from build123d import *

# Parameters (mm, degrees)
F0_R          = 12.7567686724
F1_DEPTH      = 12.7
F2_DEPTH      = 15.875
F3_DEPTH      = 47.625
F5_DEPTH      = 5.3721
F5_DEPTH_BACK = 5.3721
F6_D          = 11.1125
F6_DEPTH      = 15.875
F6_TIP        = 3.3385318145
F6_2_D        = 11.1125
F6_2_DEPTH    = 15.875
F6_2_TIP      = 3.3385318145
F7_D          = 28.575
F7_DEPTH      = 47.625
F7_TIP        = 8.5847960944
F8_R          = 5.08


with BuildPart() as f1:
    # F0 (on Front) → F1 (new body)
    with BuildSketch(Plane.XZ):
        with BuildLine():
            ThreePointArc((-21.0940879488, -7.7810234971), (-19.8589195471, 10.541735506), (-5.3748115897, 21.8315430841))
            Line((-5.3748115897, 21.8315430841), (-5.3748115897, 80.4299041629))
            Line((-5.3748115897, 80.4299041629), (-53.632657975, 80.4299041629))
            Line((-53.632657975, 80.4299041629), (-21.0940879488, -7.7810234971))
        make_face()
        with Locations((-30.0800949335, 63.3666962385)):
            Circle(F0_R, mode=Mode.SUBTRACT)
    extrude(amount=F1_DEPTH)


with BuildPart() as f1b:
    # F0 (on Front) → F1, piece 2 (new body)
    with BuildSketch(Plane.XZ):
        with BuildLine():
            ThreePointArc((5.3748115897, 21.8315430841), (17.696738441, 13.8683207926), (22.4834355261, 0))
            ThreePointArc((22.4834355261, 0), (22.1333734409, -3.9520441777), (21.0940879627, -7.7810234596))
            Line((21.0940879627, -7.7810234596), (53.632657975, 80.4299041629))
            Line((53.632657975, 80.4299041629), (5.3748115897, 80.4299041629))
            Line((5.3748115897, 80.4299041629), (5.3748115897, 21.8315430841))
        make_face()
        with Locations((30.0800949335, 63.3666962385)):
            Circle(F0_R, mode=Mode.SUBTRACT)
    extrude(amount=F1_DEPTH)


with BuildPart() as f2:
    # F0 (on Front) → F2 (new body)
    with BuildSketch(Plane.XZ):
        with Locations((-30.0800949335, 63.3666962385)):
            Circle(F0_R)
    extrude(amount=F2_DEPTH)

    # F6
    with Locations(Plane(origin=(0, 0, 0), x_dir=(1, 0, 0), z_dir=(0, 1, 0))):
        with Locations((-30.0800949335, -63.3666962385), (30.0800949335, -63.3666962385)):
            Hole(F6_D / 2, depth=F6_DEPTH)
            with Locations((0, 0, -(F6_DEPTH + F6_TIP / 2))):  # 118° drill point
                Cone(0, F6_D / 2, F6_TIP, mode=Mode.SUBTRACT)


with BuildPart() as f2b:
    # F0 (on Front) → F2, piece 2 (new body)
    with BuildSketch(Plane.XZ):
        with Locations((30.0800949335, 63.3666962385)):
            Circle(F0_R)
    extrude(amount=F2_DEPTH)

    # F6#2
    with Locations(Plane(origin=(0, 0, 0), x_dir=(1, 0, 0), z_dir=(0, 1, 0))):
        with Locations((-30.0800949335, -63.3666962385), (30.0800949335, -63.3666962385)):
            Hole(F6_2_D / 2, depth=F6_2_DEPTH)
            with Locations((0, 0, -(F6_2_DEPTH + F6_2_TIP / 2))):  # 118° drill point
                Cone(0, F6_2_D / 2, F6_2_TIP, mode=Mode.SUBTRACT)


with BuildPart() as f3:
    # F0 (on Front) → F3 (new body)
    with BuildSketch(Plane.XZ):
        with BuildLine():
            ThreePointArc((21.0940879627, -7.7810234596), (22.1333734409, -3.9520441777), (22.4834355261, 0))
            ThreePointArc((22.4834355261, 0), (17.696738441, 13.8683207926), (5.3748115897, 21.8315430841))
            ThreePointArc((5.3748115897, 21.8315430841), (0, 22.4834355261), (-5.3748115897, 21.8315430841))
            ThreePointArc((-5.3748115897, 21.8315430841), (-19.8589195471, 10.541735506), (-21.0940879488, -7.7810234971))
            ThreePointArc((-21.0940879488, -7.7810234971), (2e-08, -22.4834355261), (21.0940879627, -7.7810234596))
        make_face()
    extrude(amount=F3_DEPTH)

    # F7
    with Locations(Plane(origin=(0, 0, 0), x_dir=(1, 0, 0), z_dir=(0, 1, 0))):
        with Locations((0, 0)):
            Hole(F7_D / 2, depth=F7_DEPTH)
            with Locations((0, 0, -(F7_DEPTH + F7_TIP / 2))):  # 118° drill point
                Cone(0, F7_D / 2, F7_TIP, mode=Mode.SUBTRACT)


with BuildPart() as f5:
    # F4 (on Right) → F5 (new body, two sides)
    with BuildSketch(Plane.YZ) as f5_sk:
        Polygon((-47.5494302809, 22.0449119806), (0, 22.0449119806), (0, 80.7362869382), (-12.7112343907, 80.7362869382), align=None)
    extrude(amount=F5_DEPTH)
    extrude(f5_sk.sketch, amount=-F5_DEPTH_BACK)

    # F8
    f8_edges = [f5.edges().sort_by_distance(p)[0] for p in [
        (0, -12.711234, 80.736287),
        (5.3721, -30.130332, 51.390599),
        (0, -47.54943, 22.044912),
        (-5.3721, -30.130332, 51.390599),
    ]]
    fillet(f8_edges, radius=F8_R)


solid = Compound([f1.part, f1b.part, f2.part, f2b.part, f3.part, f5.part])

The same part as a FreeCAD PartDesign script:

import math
import FreeCAD as App
import Part
import Sketcher
Q = App.Units.Quantity


def edges_at(feature, points):
    """Names of the edges that pass closest to the given points."""
    edges = feature.Shape.Edges
    near = lambda p: min(range(len(edges)), key=lambda i: edges[i].distToShape(Part.Vertex(*p))[0])
    return sorted({f"Edge{near(p) + 1}" for p in points})

doc = App.newDocument("Part")
body = doc.addObject("PartDesign::Body", "Body")

# Sketch on XZ plane
sketch1 = body.newObject("Sketcher::SketchObject", "Sketch")
sketch1.AttachmentSupport = (doc.getObject("XZ_Plane"), [""])
sketch1.MapMode = "FlatFace"
sketch1.addGeometry(Part.ArcOfCircle(Part.Circle(App.Vector(0, 0, 0), App.Vector(0, 0, 1), 22), math.radians(104), math.radians(200)), False)
sketch1.addGeometry(Part.LineSegment(App.Vector(-5, 22, 0), App.Vector(-5, 80, 0)), False)
sketch1.addGeometry(Part.LineSegment(App.Vector(-5, 80, 0), App.Vector(-54, 80, 0)), False)
sketch1.addGeometry(Part.LineSegment(App.Vector(-54, 80, 0), App.Vector(-21, -8, 0)), False)
sketch1.addGeometry(Part.Circle(App.Vector(-30, 63, 0), App.Vector(0, 0, 1), 13), False)
sketch1.addConstraint(Sketcher.Constraint("Coincident", 0, 1, 1, 1))
sketch1.addConstraint(Sketcher.Constraint("Coincident", 1, 2, 2, 1))
sketch1.addConstraint(Sketcher.Constraint("Coincident", 2, 2, 3, 1))
sketch1.addConstraint(Sketcher.Constraint("Tangent", 3, 2, 0, 2))
sketch1.addConstraint(Sketcher.Constraint("Vertical", 1))
sketch1.addConstraint(Sketcher.Constraint("Horizontal", 2))
sketch1.addConstraint(Sketcher.Constraint("Coincident", 0, 3, -1, 1))
sketch1.addConstraint(Sketcher.Constraint("Diameter", 4, Q("25.513537 mm")))
sketch1.addConstraint(Sketcher.Constraint("Radius", 0, Q("22.483436 mm")))
sketch1.addConstraint(Sketcher.Constraint("DistanceY", 1, 1, 1, 2, Q("58.598361 mm")))
sketch1.addConstraint(Sketcher.Constraint("DistanceX", 2, 2, 2, 1, Q("48.257846 mm")))
sketch1.addConstraint(Sketcher.Constraint("DistanceX", 0, 1, -1, 1, Q("5.374812 mm")))
sketch1.addConstraint(Sketcher.Constraint("DistanceY", 3, 2, 4, 3, Q("71.14772 mm")))
sketch1.addConstraint(Sketcher.Constraint("DistanceX", 4, 3, -1, 1, Q("30.080095 mm")))
pad1 = body.newObject("PartDesign::Pad", "Pad")
pad1.Profile = sketch1
pad1.Length = Q("0.5 in")
body2 = doc.addObject("PartDesign::Body", "Body001")

# Sketch on XZ plane
sketch2 = body2.newObject("Sketcher::SketchObject", "Sketch001")
sketch2.AttachmentSupport = (doc.getObject("XZ_Plane001"), [""])
sketch2.MapMode = "FlatFace"
sketch2.addGeometry(Part.ArcOfCircle(Part.Circle(App.Vector(0, 0, 0), App.Vector(0, 0, 1), 22), math.radians(0), math.radians(76)), False)
sketch2.addGeometry(Part.ArcOfCircle(Part.Circle(App.Vector(0, 0, 0), App.Vector(0, 0, 1), 22), math.radians(-20), math.radians(0)), False)
sketch2.addGeometry(Part.LineSegment(App.Vector(21, -8, 0), App.Vector(54, 80, 0)), False)
sketch2.addGeometry(Part.LineSegment(App.Vector(54, 80, 0), App.Vector(5, 80, 0)), False)
sketch2.addGeometry(Part.LineSegment(App.Vector(5, 80, 0), App.Vector(5, 22, 0)), False)
sketch2.addGeometry(Part.Circle(App.Vector(30, 63, 0), App.Vector(0, 0, 1), 13), False)
sketch2.addConstraint(Sketcher.Constraint("Tangent", 0, 1, 1, 2))
sketch2.addConstraint(Sketcher.Constraint("Tangent", 1, 1, 2, 1))
sketch2.addConstraint(Sketcher.Constraint("Coincident", 2, 2, 3, 1))
sketch2.addConstraint(Sketcher.Constraint("Coincident", 3, 2, 4, 1))
sketch2.addConstraint(Sketcher.Constraint("Coincident", 4, 2, 0, 2))
sketch2.addConstraint(Sketcher.Constraint("Horizontal", 3))
sketch2.addConstraint(Sketcher.Constraint("Vertical", 4))
sketch2.addConstraint(Sketcher.Constraint("Coincident", 0, 3, -1, 1))
sketch2.addConstraint(Sketcher.Constraint("Equal", 0, 1))
sketch2.addConstraint(Sketcher.Constraint("PointOnObject", 0, 1, -1))
sketch2.addConstraint(Sketcher.Constraint("Diameter", 5, Q("25.513537 mm")))
sketch2.addConstraint(Sketcher.Constraint("Radius", 0, Q("22.483436 mm")))
sketch2.addConstraint(Sketcher.Constraint("DistanceY", 4, 2, 4, 1, Q("58.598361 mm")))
sketch2.addConstraint(Sketcher.Constraint("DistanceX", 3, 2, 3, 1, Q("48.257846 mm")))
sketch2.addConstraint(Sketcher.Constraint("DistanceX", -1, 1, 3, 2, Q("5.374812 mm")))
sketch2.addConstraint(Sketcher.Constraint("DistanceX", 0, 1, 5, 3, Q("7.596659 mm")))
sketch2.addConstraint(Sketcher.Constraint("DistanceY", 1, 1, 5, 3, Q("71.14772 mm")))
pad2 = body2.newObject("PartDesign::Pad", "Pad001")
pad2.Profile = sketch2
pad2.Length = Q("0.5 in")
body3 = doc.addObject("PartDesign::Body", "Body002")

# Sketch on XZ plane
sketch3 = body3.newObject("Sketcher::SketchObject", "Sketch002")
sketch3.AttachmentSupport = (doc.getObject("XZ_Plane002"), [""])
sketch3.MapMode = "FlatFace"
sketch3.addGeometry(Part.Circle(App.Vector(-30, 63, 0), App.Vector(0, 0, 1), 13), False)
sketch3.addConstraint(Sketcher.Constraint("Diameter", 0, Q("25.513537 mm")))
sketch3.addConstraint(Sketcher.Constraint("DistanceX", 0, 3, -1, 1, Q("30.080095 mm")))
sketch3.addConstraint(Sketcher.Constraint("DistanceY", -1, 1, 0, 3, Q("63.366696 mm")))
pad3 = body3.newObject("PartDesign::Pad", "Pad002")
pad3.Profile = sketch3
pad3.Length = Q("0.625 in")

# Sketch on XZ plane
sketch4 = body3.newObject("Sketcher::SketchObject", "Sketch003")
sketch4.AttachmentSupport = (doc.getObject("XZ_Plane002"), [""])
sketch4.MapMode = "FlatFace"
sketch4.addGeometry(Part.Circle(App.Vector(-30, 63, 0), App.Vector(0, 0, 1), 6), False)
sketch4.addGeometry(Part.Circle(App.Vector(30, 63, 0), App.Vector(0, 0, 1), 6), False)
sketch4.addConstraint(Sketcher.Constraint("Equal", 0, 1))
sketch4.addConstraint(Sketcher.Constraint("Symmetric", 0, 3, 1, 3, -2))
sketch4.addConstraint(Sketcher.Constraint("Diameter", 0, Q("0.4375 in")))
sketch4.addConstraint(Sketcher.Constraint("DistanceX", 0, 3, 1, 3, Q("60.16019 mm")))
sketch4.addConstraint(Sketcher.Constraint("DistanceY", -1, 1, 0, 3, Q("63.366696 mm")))
doc.recompute()
hole = body3.newObject("PartDesign::Hole", "Hole")
hole.Profile = sketch4
hole.ThreadType = "None"
hole.Diameter = Q("0.4375 in")
hole.DepthType = "Dimension"
hole.Depth = Q("0.625 in")
hole.DrillPoint = "Angled"
hole.DrillPointAngle = 118
hole.Reversed = True
body4 = doc.addObject("PartDesign::Body", "Body003")

# Sketch on XZ plane
sketch5 = body4.newObject("Sketcher::SketchObject", "Sketch004")
sketch5.AttachmentSupport = (doc.getObject("XZ_Plane003"), [""])
sketch5.MapMode = "FlatFace"
sketch5.addGeometry(Part.Circle(App.Vector(30, 63, 0), App.Vector(0, 0, 1), 13), False)
sketch5.addConstraint(Sketcher.Constraint("Diameter", 0, Q("25.513537 mm")))
sketch5.addConstraint(Sketcher.Constraint("DistanceX", -1, 1, 0, 3, Q("30.080095 mm")))
sketch5.addConstraint(Sketcher.Constraint("DistanceY", -1, 1, 0, 3, Q("63.366696 mm")))
pad4 = body4.newObject("PartDesign::Pad", "Pad003")
pad4.Profile = sketch5
pad4.Length = Q("0.625 in")

# Sketch on XZ plane
sketch6 = body4.newObject("Sketcher::SketchObject", "Sketch005")
sketch6.AttachmentSupport = (doc.getObject("XZ_Plane003"), [""])
sketch6.MapMode = "FlatFace"
sketch6.addGeometry(Part.Circle(App.Vector(-30, 63, 0), App.Vector(0, 0, 1), 6), False)
sketch6.addGeometry(Part.Circle(App.Vector(30, 63, 0), App.Vector(0, 0, 1), 6), False)
sketch6.addConstraint(Sketcher.Constraint("Equal", 0, 1))
sketch6.addConstraint(Sketcher.Constraint("Symmetric", 0, 3, 1, 3, -2))
sketch6.addConstraint(Sketcher.Constraint("Diameter", 0, Q("0.4375 in")))
sketch6.addConstraint(Sketcher.Constraint("DistanceX", 0, 3, 1, 3, Q("60.16019 mm")))
sketch6.addConstraint(Sketcher.Constraint("DistanceY", -1, 1, 0, 3, Q("63.366696 mm")))
doc.recompute()
hole2 = body4.newObject("PartDesign::Hole", "Hole001")
hole2.Profile = sketch6
hole2.ThreadType = "None"
hole2.Diameter = Q("0.4375 in")
hole2.DepthType = "Dimension"
hole2.Depth = Q("0.625 in")
hole2.DrillPoint = "Angled"
hole2.DrillPointAngle = 118
hole2.Reversed = True
body5 = doc.addObject("PartDesign::Body", "Body004")

# Sketch on XZ plane
sketch7 = body5.newObject("Sketcher::SketchObject", "Sketch006")
sketch7.AttachmentSupport = (doc.getObject("XZ_Plane004"), [""])
sketch7.MapMode = "FlatFace"
sketch7.addGeometry(Part.ArcOfCircle(Part.Circle(App.Vector(0, 0, 0), App.Vector(0, 0, 1), 22), math.radians(0), math.radians(76)), False)
sketch7.addGeometry(Part.ArcOfCircle(Part.Circle(App.Vector(0, 0, 0), App.Vector(0, 0, 1), 22), math.radians(76), math.radians(104)), False)
sketch7.addGeometry(Part.ArcOfCircle(Part.Circle(App.Vector(0, 0, 0), App.Vector(0, 0, 1), 22), math.radians(104), math.radians(200)), False)
sketch7.addGeometry(Part.ArcOfCircle(Part.Circle(App.Vector(0, 0, 0), App.Vector(0, 0, 1), 22), math.radians(-160), math.radians(0)), False)
sketch7.addConstraint(Sketcher.Constraint("Tangent", 0, 2, 1, 1))
sketch7.addConstraint(Sketcher.Constraint("Tangent", 1, 2, 2, 1))
sketch7.addConstraint(Sketcher.Constraint("Tangent", 2, 2, 3, 1))
sketch7.addConstraint(Sketcher.Constraint("Tangent", 3, 2, 0, 1))
sketch7.addConstraint(Sketcher.Constraint("Coincident", 0, 3, -1, 1))
sketch7.addConstraint(Sketcher.Constraint("Equal", 0, 1))
sketch7.addConstraint(Sketcher.Constraint("PointOnObject", 3, 2, -1))
sketch7.addConstraint(Sketcher.Constraint("Horizontal", 0, 2, 1, 2))
sketch7.addConstraint(Sketcher.Constraint("Radius", 0, Q("22.483436 mm")))
sketch7.addConstraint(Sketcher.Constraint("DistanceX", -1, 1, 0, 2, Q("5.374812 mm")))
sketch7.addConstraint(Sketcher.Constraint("DistanceX", 2, 2, -1, 1, Q("21.094088 mm")))
pad5 = body5.newObject("PartDesign::Pad", "Pad004")
pad5.Profile = sketch7
pad5.Length = Q("1.875 in")

# Sketch on XZ plane
sketch8 = body5.newObject("Sketcher::SketchObject", "Sketch007")
sketch8.AttachmentSupport = (doc.getObject("XZ_Plane004"), [""])
sketch8.MapMode = "FlatFace"
sketch8.addGeometry(Part.Circle(App.Vector(0, 0, 0), App.Vector(0, 0, 1), 14), False)
sketch8.addConstraint(Sketcher.Constraint("Coincident", 0, 3, -1, 1))
sketch8.addConstraint(Sketcher.Constraint("Diameter", 0, Q("1.125 in")))
doc.recompute()
hole3 = body5.newObject("PartDesign::Hole", "Hole002")
hole3.Profile = sketch8
hole3.ThreadType = "None"
hole3.Diameter = Q("1.125 in")
hole3.DepthType = "Dimension"
hole3.Depth = Q("1.875 in")
hole3.DrillPoint = "Angled"
hole3.DrillPointAngle = 118
hole3.Reversed = True
body6 = doc.addObject("PartDesign::Body", "Body005")

# Sketch on YZ plane
sketch9 = body6.newObject("Sketcher::SketchObject", "Sketch008")
sketch9.AttachmentSupport = (doc.getObject("YZ_Plane005"), [""])
sketch9.MapMode = "FlatFace"
sketch9.addGeometry(Part.LineSegment(App.Vector(-48, 22, 0), App.Vector(0, 22, 0)), False)
sketch9.addGeometry(Part.LineSegment(App.Vector(0, 22, 0), App.Vector(0, 81, 0)), False)
sketch9.addGeometry(Part.LineSegment(App.Vector(0, 81, 0), App.Vector(-13, 81, 0)), False)
sketch9.addGeometry(Part.LineSegment(App.Vector(-13, 81, 0), App.Vector(-48, 22, 0)), False)
sketch9.addConstraint(Sketcher.Constraint("Coincident", 0, 2, 1, 1))
sketch9.addConstraint(Sketcher.Constraint("Coincident", 1, 2, 2, 1))
sketch9.addConstraint(Sketcher.Constraint("Coincident", 2, 2, 3, 1))
sketch9.addConstraint(Sketcher.Constraint("Coincident", 3, 2, 0, 1))
sketch9.addConstraint(Sketcher.Constraint("Horizontal", 0))
sketch9.addConstraint(Sketcher.Constraint("Vertical", 1))
sketch9.addConstraint(Sketcher.Constraint("Horizontal", 2))
sketch9.addConstraint(Sketcher.Constraint("PointOnObject", 0, 2, -2))
sketch9.addConstraint(Sketcher.Constraint("DistanceX", 0, 1, 0, 2, Q("47.54943 mm")))
sketch9.addConstraint(Sketcher.Constraint("DistanceX", 2, 2, 2, 1, Q("12.711234 mm")))
sketch9.addConstraint(Sketcher.Constraint("DistanceY", 1, 1, 1, 2, Q("58.691375 mm")))
sketch9.addConstraint(Sketcher.Constraint("DistanceY", -1, 1, 0, 2, Q("22.044912 mm")))
pad6 = body6.newObject("PartDesign::Pad", "Pad005")
pad6.Profile = sketch9
pad6.Type = "TwoLengths"
pad6.Length = Q("0.2115 in")
pad6.Length2 = Q("0.2115 in")
doc.recompute()

fillet = body6.newObject("PartDesign::Fillet", "Fillet")
fillet.Base = (pad6, edges_at(pad6, [
    (0, -12.711, 80.736),
    (5.372, -30.13, 51.391),
    (0, -47.549, 22.045),
    (-5.372, -30.13, 51.391),
]))
fillet.Radius = Q("0.2 in")

doc.recompute()
